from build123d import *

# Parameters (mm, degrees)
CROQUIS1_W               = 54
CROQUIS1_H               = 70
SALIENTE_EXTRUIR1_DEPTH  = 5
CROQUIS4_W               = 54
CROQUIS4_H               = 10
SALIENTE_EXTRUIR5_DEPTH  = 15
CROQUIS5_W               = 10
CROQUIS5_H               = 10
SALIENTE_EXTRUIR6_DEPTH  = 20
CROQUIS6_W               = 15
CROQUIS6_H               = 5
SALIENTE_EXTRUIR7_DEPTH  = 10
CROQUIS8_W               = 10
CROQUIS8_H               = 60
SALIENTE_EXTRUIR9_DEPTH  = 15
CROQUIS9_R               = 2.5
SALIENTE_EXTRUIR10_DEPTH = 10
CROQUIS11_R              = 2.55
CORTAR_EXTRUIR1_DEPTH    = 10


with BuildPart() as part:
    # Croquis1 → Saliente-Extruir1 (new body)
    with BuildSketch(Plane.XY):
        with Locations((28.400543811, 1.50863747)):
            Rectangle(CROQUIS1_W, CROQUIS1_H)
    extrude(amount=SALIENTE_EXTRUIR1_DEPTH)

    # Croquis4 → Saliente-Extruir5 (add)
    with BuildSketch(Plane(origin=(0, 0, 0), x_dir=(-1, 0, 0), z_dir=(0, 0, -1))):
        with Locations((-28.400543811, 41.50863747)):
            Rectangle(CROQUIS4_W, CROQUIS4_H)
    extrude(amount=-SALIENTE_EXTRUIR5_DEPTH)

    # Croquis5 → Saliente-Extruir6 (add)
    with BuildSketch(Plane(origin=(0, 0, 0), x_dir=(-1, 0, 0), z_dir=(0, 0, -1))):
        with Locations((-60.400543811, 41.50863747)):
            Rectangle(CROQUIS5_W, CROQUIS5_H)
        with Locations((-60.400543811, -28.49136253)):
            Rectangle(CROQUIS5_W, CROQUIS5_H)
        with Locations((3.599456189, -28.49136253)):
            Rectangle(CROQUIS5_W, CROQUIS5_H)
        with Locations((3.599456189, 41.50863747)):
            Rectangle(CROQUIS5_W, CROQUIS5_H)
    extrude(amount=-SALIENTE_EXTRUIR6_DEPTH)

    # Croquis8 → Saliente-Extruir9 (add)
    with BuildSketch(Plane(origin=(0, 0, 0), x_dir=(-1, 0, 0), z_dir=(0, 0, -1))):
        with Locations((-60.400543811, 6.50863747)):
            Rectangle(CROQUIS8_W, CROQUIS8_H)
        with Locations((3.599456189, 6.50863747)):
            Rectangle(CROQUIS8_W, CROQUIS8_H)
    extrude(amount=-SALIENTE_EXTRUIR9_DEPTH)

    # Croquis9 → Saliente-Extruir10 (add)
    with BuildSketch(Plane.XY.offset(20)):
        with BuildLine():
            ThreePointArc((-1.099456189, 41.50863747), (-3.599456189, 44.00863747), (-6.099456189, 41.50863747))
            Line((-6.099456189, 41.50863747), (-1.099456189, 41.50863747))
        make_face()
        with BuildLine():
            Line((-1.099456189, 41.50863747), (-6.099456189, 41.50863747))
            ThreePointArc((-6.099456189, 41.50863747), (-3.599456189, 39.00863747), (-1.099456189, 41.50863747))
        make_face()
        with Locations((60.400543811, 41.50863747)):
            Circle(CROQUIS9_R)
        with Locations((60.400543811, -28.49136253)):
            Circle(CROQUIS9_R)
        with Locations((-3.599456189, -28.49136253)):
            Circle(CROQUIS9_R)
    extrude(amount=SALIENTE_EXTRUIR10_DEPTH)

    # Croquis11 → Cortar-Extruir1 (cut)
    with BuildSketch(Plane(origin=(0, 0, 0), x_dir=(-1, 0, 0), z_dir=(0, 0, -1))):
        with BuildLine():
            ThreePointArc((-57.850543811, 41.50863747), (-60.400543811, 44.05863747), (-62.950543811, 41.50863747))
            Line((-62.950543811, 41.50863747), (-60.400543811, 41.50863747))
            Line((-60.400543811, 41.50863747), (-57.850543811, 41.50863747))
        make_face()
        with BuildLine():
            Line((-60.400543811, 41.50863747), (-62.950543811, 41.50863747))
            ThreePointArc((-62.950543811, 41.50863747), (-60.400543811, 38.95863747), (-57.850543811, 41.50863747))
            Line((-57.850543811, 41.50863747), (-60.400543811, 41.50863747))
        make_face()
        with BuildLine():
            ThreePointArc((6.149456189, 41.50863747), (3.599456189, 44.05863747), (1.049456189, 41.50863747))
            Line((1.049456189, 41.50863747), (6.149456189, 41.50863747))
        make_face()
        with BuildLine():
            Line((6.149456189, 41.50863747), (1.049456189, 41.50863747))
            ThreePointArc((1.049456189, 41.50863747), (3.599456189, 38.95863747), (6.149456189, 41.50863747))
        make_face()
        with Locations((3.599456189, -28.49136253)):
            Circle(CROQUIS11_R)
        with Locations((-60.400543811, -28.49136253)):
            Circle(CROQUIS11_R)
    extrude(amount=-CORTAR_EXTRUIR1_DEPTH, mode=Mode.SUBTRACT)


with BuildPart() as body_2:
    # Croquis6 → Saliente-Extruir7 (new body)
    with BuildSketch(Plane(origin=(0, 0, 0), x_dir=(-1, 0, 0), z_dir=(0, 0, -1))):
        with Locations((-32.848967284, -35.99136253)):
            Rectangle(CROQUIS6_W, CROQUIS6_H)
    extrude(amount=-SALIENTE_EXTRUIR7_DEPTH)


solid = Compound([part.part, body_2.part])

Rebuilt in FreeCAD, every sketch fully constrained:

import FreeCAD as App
import Part
import Sketcher

V = App.Vector


def add_polygon(sketch, points):
    """Adds a closed chain of lines whose ends are joined by coincident constraints."""
    first, n = sketch.GeometryCount, len(points)
    for a, b in zip(points, points[1:] + points[:1]):
        sketch.addGeometry(Part.LineSegment(App.Vector(*a, 0), App.Vector(*b, 0)), False)
    for i in range(n):
        sketch.addConstraint(Sketcher.Constraint("Coincident", first + i, 2, first + (i + 1) % n, 1))

doc = App.newDocument("Part")
body = doc.addObject("PartDesign::Body", "Body")

sketch1 = body.newObject("Sketcher::SketchObject", "Sketch")
sketch1.AttachmentSupport = (doc.getObject("XY_Plane"), [""])
sketch1.MapMode = "FlatFace"
add_polygon(sketch1, [(1, 37), (1, -33), (55, -33), (55, 37)])
sketch1.addConstraint([
    Sketcher.Constraint("Vertical", 0),
    Sketcher.Constraint("Horizontal", 1),
    Sketcher.Constraint("Vertical", 2),
    Sketcher.Constraint("Horizontal", 3),
    Sketcher.Constraint("DistanceX", 1, 1, 1, 2, 54.0),
    Sketcher.Constraint("DistanceY", 0, 2, 0, 1, 70.0),
    Sketcher.Constraint("DistanceX", -1, 1, 0, 2, 1.400544),
    Sketcher.Constraint("DistanceY", 0, 2, -1, 1, 33.491363),
])
pad1 = body.newObject("PartDesign::Pad", "Pad")
pad1.Profile = sketch1
pad1.Length = 5

sketch2 = body.newObject("Sketcher::SketchObject", "Sketch001")
sketch2.AttachmentSupport = (doc.getObject("XY_Plane"), [""])
sketch2.MapMode = "FlatFace"
add_polygon(sketch2, [(55, 47), (55, 37), (1, 37), (1, 47)])
sketch2.addConstraint([
    Sketcher.Constraint("Vertical", 0),
    Sketcher.Constraint("Horizontal", 1),
    Sketcher.Constraint("Vertical", 2),
    Sketcher.Constraint("Horizontal", 3),
    Sketcher.Constraint("DistanceX", 1, 2, 1, 1, 54.0),
    Sketcher.Constraint("DistanceY", 0, 2, 0, 1, 10.0),
    Sketcher.Constraint("DistanceX", -1, 1, 0, 2, 55.400544),
    Sketcher.Constraint("DistanceY", -1, 1, 0, 2, 36.508637),
])
pad2 = body.newObject("PartDesign::Pad", "Pad001")
pad2.Profile = sketch2
pad2.Length = 15

sketch3 = body.newObject("Sketcher::SketchObject", "Sketch002")
sketch3.AttachmentSupport = (doc.getObject("XY_Plane"), [""])
sketch3.MapMode = "FlatFace"
add_polygon(sketch3, [(65, 47), (65, 37), (55, 37), (55, 47)])
add_polygon(sketch3, [(65, -23), (65, -33), (55, -33), (55, -23)])
add_polygon(sketch3, [(1, -23), (1, -33), (-9, -33), (-9, -23)])
add_polygon(sketch3, [(1, 47), (1, 37), (-9, 37), (-9, 47)])
sketch3.addConstraint([
    Sketcher.Constraint("Vertical", 0),
    Sketcher.Constraint("Horizontal", 1),
    Sketcher.Constraint("Vertical", 2),
    Sketcher.Constraint("Horizontal", 3),
    Sketcher.Constraint("Vertical", 4),
    Sketcher.Constraint("Horizontal", 5),
    Sketcher.Constraint("Vertical", 6),
    Sketcher.Constraint("Horizontal", 7),
    Sketcher.Constraint("Vertical", 8),
    Sketcher.Constraint("Horizontal", 9),
    Sketcher.Constraint("Vertical", 10),
    Sketcher.Constraint("Horizontal", 11),
    Sketcher.Constraint("Vertical", 12),
    Sketcher.Constraint("Horizontal", 13),
    Sketcher.Constraint("Vertical", 14),
    Sketcher.Constraint("Horizontal", 15),
    Sketcher.Constraint("Horizontal", 5, 2, 8, 2),
    Sketcher.Constraint("Horizontal", 7, 2, 10, 2),
    Sketcher.Constraint("Horizontal", 1, 2, 12, 2),
    Sketcher.Constraint("Horizontal", 3, 2, 14, 2),
    Sketcher.Constraint("Vertical", 3, 2, 4, 2),
    Sketcher.Constraint("Vertical", 2, 2, 5, 2),
    Sketcher.Constraint("Vertical", 11, 2, 12, 2),
    Sketcher.Constraint("Vertical", 10, 2, 13, 2),
    Sketcher.Constraint("Equal", 7, 9),
    Sketcher.Constraint("Equal", 15, 0),
    Sketcher.Constraint("Equal", 2, 4),
    Sketcher.Constraint("DistanceX", 1, 2, 1, 1, 10.0),
    Sketcher.Constraint("DistanceY", 4, 2, 0, 2, 70.0),
    Sketcher.Constraint("DistanceX", 8, 2, 5, 2, 54.0),
    Sketcher.Constraint("DistanceX", -1, 1, 0, 2, 65.400544),
    Sketcher.Constraint("DistanceY", -1, 1, 0, 2, 36.508637),
])
pad3 = body.newObject("PartDesign::Pad", "Pad002")
pad3.Profile = sketch3
pad3.Length = 20

sketch4 = body.newObject("Sketcher::SketchObject", "Sketch003")
sketch4.AttachmentSupport = (doc.getObject("XY_Plane"), [""])
sketch4.MapMode = "FlatFace"
add_polygon(sketch4, [(65, 37), (65, -23), (55, -23), (55, 37)])
add_polygon(sketch4, [(1, 37), (1, -23), (-9, -23), (-9, 37)])
sketch4.addConstraint([
    Sketcher.Constraint("Vertical", 0),
    Sketcher.Constraint("Horizontal", 1),
    Sketcher.Constraint("Vertical", 2),
    Sketcher.Constraint("Horizontal", 3),
    Sketcher.Constraint("Vertical", 4),
    Sketcher.Constraint("Horizontal", 5),
    Sketcher.Constraint("Vertical", 6),
    Sketcher.Constraint("Horizontal", 7),
    Sketcher.Constraint("Horizontal", 1, 2, 4, 2),
    Sketcher.Constraint("Horizontal", 3, 2, 6, 2),
    Sketcher.Constraint("Equal", 3, 5),
    Sketcher.Constraint("DistanceX", 1, 2, 1, 1, 10.0),
    Sketcher.Constraint("DistanceY", 0, 2, 0, 1, 60.0),
    Sketcher.Constraint("DistanceX", 4, 2, 1, 2, 54.0),
    Sketcher.Constraint("DistanceX", -1, 1, 0, 2, 65.400544),
    Sketcher.Constraint("DistanceY", 0, 2, -1, 1, 23.491363),
])
pad4 = body.newObject("PartDesign::Pad", "Pad003")
pad4.Profile = sketch4
pad4.Length = 15

sketch5 = body.newObject("Sketcher::SketchObject", "Sketch004")
sketch5.AttachmentSupport = (doc.getObject("XY_Plane"), [""])
sketch5.MapMode = "FlatFace"
sketch5.AttachmentOffset = App.Placement(V(0, 0, 20), App.Rotation())
sketch5.addGeometry([
    Part.Circle(V(-3.6, 41.5, 0), V(0, 0, 1), 2.5),
    Part.Circle(V(60.4, 41.5, 0), V(0, 0, 1), 2.5),
    Part.Circle(V(60.4, -28.5, 0), V(0, 0, 1), 2.5),
    Part.Circle(V(-3.6, -28.5, 0), V(0, 0, 1), 2.5),
], False)
sketch5.addConstraint([
    Sketcher.Constraint("Equal", 0, 1),
    Sketcher.Constraint("Equal", 1, 2),
    Sketcher.Constraint("Equal", 2, 3),
    Sketcher.Constraint("Horizontal", 0, 3, 1, 3),
    Sketcher.Constraint("Horizontal", 2, 3, 3, 3),
    Sketcher.Constraint("Vertical", 1, 3, 2, 3),
    Sketcher.Constraint("Vertical", 0, 3, 3, 3),
    Sketcher.Constraint("Diameter", 0, 5.0),
    Sketcher.Constraint("DistanceX", 0, 3, 1, 3, 64.0),
    Sketcher.Constraint("DistanceY", 2, 3, 1, 3, 70.0),
    Sketcher.Constraint("DistanceX", 0, 3, -1, 1, 3.599456),
    Sketcher.Constraint("DistanceY", -1, 1, 0, 3, 41.508637),
])
pad5 = body.newObject("PartDesign::Pad", "Pad004")
pad5.Profile = sketch5
pad5.Length = 10

sketch6 = body.newObject("Sketcher::SketchObject", "Sketch005")
sketch6.AttachmentSupport = (doc.getObject("XY_Plane"), [""])
sketch6.MapMode = "FlatFace"
sketch6.addGeometry([
    Part.Circle(V(60.4, 41.5, 0), V(0, 0, 1), 2.5),
    Part.Circle(V(-3.6, 41.5, 0), V(0, 0, 1), 2.5),
    Part.Circle(V(-3.6, -28.5, 0), V(0, 0, 1), 2.5),
    Part.Circle(V(60.4, -28.5, 0), V(0, 0, 1), 2.5),
], False)
sketch6.addConstraint([
    Sketcher.Constraint("Equal", 0, 1),
    Sketcher.Constraint("Equal", 1, 2),
    Sketcher.Constraint("Equal", 2, 3),
    Sketcher.Constraint("Horizontal", 0, 3, 1, 3),
    Sketcher.Constraint("Horizontal", 2, 3, 3, 3),
    Sketcher.Constraint("Vertical", 1, 3, 2, 3),
    Sketcher.Constraint("Vertical", 0, 3, 3, 3),
    Sketcher.Constraint("Diameter", 0, 5.1),
    Sketcher.Constraint("DistanceX", 1, 3, 0, 3, 64.0),
    Sketcher.Constraint("DistanceY", 2, 3, 1, 3, 70.0),
    Sketcher.Constraint("DistanceX", -1, 1, 0, 3, 60.400544),
    Sketcher.Constraint("DistanceY", -1, 1, 0, 3, 41.508637),
])
pocket1 = body.newObject("PartDesign::Pocket", "Pocket")
pocket1.Profile = sketch6
pocket1.Length = 10
pocket1.Reversed = True
body2 = doc.addObject("PartDesign::Body", "Body001")

sketch7 = body2.newObject("Sketcher::SketchObject", "Sketch006")
sketch7.AttachmentSupport = (doc.getObject("XY_Plane001"), [""])
sketch7.MapMode = "FlatFace"
add_polygon(sketch7, [(40, -33), (40, -38), (25, -38), (25, -33)])
sketch7.addConstraint([
    Sketcher.Constraint("Vertical", 0),
    Sketcher.Constraint("Horizontal", 1),
    Sketcher.Constraint("Vertical", 2),
    Sketcher.Constraint("Horizontal", 3),
    Sketcher.Constraint("DistanceX", 1, 2, 1, 1, 15.0),
    Sketcher.Constraint("DistanceY", 0, 2, 0, 1, 5.0),
    Sketcher.Constraint("DistanceX", -1, 1, 0, 2, 40.348967),
    Sketcher.Constraint("DistanceY", 0, 2, -1, 1, 38.491363),
])
pad6 = body2.newObject("PartDesign::Pad", "Pad005")
pad6.Profile = sketch7
pad6.Length = 10

doc.recompute()
